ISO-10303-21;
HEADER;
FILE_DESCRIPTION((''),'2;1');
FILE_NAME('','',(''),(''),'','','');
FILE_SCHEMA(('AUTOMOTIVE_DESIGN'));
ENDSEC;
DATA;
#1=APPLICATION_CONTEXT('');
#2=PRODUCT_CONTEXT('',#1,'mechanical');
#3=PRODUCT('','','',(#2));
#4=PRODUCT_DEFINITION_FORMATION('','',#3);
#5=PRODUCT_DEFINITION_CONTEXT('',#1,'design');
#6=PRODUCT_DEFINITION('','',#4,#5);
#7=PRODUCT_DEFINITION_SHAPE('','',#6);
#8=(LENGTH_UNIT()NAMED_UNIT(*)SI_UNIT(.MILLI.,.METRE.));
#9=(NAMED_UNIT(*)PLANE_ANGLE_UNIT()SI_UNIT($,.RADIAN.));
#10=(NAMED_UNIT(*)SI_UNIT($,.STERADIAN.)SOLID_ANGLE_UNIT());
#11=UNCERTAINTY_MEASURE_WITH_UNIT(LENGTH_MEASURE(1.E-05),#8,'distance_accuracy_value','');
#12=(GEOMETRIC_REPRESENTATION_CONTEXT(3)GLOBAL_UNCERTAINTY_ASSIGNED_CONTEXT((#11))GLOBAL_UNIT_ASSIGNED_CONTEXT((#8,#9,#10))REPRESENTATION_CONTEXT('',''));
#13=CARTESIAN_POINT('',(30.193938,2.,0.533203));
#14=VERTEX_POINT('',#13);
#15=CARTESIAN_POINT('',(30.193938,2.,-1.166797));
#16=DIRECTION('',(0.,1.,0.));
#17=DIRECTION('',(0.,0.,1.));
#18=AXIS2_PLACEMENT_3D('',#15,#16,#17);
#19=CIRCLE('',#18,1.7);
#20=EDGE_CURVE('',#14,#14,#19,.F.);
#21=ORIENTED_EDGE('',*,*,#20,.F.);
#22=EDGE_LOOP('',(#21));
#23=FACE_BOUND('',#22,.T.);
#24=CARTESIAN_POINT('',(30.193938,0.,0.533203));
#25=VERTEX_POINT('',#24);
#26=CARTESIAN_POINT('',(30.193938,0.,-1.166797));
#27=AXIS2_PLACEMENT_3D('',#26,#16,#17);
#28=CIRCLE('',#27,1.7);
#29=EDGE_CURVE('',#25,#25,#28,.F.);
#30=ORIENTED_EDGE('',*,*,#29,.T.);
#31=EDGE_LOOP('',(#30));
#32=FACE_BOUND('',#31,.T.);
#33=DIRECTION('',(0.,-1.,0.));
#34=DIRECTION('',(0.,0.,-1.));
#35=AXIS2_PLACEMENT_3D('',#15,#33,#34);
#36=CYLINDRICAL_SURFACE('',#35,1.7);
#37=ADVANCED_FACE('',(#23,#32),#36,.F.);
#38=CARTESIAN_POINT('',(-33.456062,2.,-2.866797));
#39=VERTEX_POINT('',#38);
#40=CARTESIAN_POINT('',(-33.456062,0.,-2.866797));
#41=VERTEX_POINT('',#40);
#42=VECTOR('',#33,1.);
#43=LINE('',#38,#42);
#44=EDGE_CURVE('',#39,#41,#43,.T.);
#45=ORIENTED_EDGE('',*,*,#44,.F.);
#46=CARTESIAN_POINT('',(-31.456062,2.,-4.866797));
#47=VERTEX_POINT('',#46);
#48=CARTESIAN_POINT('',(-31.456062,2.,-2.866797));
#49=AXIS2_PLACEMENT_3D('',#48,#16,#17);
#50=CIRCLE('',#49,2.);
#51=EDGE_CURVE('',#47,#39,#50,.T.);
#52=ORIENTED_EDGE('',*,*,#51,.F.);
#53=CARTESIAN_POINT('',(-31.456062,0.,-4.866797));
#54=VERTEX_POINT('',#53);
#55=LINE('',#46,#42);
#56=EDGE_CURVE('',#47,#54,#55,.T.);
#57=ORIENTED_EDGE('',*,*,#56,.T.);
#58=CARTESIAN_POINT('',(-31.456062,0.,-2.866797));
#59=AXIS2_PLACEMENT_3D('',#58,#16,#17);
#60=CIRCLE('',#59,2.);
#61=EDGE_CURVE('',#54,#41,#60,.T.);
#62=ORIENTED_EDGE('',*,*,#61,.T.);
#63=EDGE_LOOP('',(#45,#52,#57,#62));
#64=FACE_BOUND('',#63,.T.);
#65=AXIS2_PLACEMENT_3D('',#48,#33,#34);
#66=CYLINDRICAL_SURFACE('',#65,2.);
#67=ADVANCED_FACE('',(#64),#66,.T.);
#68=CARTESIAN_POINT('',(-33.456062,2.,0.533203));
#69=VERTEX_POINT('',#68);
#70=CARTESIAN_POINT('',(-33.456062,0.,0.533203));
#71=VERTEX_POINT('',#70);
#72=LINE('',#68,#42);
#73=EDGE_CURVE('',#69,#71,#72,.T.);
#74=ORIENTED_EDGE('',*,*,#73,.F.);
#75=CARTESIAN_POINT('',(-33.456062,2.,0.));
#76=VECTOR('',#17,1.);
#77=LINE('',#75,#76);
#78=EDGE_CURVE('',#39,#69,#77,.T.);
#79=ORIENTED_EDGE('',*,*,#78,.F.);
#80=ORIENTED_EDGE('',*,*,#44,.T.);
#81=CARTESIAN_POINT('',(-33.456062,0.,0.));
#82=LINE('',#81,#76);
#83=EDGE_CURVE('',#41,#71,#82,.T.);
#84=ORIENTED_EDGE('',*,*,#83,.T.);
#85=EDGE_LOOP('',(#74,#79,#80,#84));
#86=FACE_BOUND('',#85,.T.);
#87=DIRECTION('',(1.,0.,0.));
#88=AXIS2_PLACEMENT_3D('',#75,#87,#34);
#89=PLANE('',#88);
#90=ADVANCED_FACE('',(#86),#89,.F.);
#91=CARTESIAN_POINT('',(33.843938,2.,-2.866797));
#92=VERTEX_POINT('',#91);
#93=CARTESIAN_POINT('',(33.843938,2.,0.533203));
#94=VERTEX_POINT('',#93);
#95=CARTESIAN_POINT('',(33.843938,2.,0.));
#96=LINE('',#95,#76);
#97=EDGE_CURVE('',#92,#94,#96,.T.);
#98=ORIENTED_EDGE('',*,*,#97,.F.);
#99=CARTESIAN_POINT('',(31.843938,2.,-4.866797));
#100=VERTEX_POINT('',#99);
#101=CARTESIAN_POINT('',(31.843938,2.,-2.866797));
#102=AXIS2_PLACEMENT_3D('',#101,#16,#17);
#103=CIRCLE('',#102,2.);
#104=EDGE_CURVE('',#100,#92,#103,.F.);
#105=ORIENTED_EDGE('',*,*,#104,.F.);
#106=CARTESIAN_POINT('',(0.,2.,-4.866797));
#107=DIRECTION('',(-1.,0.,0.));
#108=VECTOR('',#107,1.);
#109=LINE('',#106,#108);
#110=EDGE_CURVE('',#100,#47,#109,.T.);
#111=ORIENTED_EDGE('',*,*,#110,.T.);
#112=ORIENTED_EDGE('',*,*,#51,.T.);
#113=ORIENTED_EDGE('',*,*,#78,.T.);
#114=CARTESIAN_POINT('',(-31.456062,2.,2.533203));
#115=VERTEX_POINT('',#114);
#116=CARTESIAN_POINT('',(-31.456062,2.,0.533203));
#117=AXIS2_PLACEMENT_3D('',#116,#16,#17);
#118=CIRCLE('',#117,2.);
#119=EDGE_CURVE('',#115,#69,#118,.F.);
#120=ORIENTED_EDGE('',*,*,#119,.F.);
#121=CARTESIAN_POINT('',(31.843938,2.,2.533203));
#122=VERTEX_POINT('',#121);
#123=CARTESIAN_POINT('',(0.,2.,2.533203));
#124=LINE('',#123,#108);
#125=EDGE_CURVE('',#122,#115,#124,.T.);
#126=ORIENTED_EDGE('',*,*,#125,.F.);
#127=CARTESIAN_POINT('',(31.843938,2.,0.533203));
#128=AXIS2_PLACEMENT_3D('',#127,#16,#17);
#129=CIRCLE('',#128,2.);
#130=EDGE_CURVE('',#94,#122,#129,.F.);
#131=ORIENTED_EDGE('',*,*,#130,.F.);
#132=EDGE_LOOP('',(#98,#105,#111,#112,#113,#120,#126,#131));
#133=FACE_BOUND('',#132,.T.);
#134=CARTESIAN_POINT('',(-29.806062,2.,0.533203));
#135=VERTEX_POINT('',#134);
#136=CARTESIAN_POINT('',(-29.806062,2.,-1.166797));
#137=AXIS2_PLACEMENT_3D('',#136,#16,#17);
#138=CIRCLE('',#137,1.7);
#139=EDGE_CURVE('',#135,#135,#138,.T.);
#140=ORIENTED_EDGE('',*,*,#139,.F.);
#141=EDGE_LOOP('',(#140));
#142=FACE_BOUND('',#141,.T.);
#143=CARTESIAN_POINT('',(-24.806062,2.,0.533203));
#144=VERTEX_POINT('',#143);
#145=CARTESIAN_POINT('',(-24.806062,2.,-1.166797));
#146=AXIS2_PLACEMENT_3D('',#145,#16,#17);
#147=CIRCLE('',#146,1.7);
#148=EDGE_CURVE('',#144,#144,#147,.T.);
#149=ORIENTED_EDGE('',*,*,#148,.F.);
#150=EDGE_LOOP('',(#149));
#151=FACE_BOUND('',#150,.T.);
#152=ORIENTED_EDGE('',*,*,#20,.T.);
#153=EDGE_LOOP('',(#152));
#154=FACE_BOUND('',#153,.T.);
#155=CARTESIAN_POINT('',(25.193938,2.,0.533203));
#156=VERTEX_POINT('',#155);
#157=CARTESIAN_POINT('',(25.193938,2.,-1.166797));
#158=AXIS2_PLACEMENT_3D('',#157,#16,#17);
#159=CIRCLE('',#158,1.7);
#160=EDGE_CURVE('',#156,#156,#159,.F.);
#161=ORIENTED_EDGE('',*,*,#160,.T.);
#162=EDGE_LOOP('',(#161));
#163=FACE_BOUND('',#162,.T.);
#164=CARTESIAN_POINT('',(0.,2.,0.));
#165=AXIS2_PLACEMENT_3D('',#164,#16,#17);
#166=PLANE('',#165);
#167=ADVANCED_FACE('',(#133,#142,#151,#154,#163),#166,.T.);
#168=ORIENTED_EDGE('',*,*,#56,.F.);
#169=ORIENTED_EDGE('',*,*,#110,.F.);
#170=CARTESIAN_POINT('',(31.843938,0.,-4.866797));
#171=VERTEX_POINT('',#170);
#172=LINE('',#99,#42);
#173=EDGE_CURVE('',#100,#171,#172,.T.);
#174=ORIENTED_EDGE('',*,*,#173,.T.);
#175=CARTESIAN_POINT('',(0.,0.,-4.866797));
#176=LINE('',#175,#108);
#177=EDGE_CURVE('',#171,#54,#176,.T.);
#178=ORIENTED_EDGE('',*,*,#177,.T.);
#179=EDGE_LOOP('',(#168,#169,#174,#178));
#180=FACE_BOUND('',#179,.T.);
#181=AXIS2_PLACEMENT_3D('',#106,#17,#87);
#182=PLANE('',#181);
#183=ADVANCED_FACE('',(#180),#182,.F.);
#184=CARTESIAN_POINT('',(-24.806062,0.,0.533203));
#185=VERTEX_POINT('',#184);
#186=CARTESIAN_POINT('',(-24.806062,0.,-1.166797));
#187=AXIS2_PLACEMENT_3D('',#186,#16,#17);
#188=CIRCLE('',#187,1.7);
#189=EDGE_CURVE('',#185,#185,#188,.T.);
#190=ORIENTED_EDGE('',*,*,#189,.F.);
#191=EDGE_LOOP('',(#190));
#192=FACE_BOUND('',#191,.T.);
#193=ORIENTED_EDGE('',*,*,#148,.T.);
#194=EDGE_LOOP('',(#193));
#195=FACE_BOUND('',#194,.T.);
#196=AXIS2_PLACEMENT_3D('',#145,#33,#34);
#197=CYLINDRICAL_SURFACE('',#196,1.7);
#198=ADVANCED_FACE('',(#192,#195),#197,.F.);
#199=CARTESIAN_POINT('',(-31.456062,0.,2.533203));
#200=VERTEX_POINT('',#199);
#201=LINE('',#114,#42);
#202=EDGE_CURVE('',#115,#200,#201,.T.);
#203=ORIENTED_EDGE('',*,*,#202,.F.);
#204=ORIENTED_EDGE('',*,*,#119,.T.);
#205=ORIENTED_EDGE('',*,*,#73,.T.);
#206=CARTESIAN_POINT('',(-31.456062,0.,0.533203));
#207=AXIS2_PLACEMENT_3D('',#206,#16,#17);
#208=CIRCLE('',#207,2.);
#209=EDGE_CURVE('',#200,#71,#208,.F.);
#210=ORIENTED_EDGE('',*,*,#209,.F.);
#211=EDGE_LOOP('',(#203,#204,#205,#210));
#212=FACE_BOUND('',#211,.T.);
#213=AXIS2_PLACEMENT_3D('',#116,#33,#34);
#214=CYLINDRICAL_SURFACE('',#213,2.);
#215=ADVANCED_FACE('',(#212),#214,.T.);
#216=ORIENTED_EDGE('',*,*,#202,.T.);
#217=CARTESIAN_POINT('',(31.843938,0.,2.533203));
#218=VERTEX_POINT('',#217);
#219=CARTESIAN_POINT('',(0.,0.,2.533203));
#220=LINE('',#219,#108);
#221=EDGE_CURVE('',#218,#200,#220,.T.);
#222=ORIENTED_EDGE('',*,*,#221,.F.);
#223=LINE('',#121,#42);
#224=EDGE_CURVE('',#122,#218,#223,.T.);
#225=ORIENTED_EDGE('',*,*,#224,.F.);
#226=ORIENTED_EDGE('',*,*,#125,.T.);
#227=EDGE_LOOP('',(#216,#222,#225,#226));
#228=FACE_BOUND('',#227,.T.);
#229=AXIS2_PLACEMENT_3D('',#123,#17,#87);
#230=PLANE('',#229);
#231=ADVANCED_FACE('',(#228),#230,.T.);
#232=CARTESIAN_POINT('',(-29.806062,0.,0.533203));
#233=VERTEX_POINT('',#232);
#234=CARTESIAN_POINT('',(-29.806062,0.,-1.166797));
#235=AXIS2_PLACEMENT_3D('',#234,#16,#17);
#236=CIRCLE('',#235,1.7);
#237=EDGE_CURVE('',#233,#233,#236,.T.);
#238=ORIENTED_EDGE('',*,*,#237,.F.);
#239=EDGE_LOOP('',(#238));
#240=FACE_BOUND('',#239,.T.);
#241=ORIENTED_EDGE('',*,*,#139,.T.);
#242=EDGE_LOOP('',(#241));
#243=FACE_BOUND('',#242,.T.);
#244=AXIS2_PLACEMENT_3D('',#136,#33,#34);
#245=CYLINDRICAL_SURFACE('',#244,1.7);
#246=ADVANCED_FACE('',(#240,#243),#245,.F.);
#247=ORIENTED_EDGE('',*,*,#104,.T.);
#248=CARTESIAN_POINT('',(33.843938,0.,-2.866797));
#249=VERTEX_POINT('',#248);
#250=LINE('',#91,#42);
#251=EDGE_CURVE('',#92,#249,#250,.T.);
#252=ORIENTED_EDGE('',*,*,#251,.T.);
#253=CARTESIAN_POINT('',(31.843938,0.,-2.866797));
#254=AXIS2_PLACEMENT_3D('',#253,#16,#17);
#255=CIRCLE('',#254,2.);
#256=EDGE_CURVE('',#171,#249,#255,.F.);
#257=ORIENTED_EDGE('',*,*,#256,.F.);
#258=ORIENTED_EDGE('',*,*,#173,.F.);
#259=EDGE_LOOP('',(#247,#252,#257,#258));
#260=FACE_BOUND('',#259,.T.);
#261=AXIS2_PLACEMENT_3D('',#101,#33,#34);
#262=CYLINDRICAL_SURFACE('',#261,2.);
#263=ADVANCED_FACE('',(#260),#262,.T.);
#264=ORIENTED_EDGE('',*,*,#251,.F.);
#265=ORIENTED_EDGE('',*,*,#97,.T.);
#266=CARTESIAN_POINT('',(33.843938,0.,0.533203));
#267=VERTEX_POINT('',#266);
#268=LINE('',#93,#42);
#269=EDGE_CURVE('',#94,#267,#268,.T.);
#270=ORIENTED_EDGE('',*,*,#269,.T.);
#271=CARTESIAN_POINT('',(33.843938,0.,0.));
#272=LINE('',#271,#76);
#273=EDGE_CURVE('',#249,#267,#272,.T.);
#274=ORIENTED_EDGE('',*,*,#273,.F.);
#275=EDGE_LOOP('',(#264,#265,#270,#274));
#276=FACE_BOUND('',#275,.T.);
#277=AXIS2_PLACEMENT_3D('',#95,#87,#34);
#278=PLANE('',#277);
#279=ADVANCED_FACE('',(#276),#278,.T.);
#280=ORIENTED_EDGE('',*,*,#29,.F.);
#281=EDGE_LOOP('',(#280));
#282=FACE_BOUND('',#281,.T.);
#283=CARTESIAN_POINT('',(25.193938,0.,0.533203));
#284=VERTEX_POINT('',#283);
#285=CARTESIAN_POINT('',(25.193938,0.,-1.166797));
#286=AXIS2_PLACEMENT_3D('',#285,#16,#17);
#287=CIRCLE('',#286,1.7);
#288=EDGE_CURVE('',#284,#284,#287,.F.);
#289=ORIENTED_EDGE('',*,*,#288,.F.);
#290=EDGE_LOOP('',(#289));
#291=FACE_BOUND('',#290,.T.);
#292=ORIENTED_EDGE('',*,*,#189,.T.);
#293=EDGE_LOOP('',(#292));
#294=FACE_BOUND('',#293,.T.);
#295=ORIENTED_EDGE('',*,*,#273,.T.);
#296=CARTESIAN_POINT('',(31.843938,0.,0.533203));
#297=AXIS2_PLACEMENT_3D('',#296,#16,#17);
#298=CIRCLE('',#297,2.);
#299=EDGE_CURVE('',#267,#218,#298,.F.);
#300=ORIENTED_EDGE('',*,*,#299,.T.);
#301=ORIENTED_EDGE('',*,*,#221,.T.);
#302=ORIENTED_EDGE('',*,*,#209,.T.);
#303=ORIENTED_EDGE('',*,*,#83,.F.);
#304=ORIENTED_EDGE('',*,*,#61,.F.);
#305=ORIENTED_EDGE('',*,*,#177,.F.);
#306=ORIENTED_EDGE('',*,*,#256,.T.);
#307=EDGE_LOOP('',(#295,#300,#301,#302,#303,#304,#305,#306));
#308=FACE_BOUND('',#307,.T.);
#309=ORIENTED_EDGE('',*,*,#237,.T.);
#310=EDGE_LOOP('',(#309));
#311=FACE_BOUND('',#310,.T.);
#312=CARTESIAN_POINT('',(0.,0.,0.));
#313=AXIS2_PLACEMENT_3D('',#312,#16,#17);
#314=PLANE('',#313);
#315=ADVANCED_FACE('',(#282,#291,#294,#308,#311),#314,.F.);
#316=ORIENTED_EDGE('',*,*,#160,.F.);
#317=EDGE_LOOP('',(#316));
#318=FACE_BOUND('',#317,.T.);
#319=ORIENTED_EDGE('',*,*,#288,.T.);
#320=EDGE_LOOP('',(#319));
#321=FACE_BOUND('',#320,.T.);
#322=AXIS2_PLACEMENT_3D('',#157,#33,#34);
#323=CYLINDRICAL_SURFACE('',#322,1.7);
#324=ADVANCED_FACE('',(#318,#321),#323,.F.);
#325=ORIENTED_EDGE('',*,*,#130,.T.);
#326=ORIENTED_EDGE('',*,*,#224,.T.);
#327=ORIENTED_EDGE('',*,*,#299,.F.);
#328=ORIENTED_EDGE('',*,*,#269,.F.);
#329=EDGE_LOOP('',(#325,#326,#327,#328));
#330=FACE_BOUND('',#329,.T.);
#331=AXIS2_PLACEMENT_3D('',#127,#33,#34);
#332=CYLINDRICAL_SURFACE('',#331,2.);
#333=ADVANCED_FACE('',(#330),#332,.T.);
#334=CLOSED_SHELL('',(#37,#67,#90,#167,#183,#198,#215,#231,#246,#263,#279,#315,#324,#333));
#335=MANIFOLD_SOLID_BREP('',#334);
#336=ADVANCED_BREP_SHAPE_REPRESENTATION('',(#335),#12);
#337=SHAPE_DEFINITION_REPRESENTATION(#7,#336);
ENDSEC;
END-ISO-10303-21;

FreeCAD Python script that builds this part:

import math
import FreeCAD as App
import Part
import Sketcher

V = App.Vector

doc = App.newDocument("Part")
body = doc.addObject("PartDesign::Body", "Body")

sketch1 = body.newObject("Sketcher::SketchObject", "Sketch")
sketch1.AttachmentSupport = (doc.getObject("XZ_Plane"), [""])
sketch1.MapMode = "FlatFace"
sketch1.addGeometry(Part.LineSegment(V(31.8, -4.9, 0), V(-31.5, -4.9, 0)), False)
sketch1.addGeometry(Part.ArcOfCircle(Part.Circle(V(-31.5, -2.9, 0), V(0, 0, 1), 2), math.radians(-180), math.radians(-90)), False)
sketch1.addGeometry(Part.LineSegment(V(-33.5, -2.9, 0), V(-33.5, 0.5, 0)), False)
sketch1.addGeometry(Part.ArcOfCircle(Part.Circle(V(-31.5, 0.5, 0), V(0, 0, 1), 2), math.radians(90), math.radians(180)), False)
sketch1.addGeometry(Part.LineSegment(V(-31.5, 2.5, 0), V(31.8, 2.5, 0)), False)
sketch1.addGeometry(Part.ArcOfCircle(Part.Circle(V(31.8, 0.5, 0), V(0, 0, 1), 2), math.radians(0), math.radians(90)), False)
sketch1.addGeometry(Part.LineSegment(V(33.8, 0.5, 0), V(33.8, -2.9, 0)), False)
sketch1.addGeometry(Part.ArcOfCircle(Part.Circle(V(31.8, -2.9, 0), V(0, 0, 1), 2), math.radians(-90), math.radians(0)), False)
sketch1.addGeometry(Part.Circle(V(-29.8, -1.2, 0), V(0, 0, 1), 1.7), False)
sketch1.addGeometry(Part.Circle(V(-24.8, -1.2, 0), V(0, 0, 1), 1.7), False)
sketch1.addGeometry(Part.Circle(V(25.2, -1.2, 0), V(0, 0, 1), 1.7), False)
sketch1.addGeometry(Part.Circle(V(30.2, -1.2, 0), V(0, 0, 1), 1.7), False)
sketch1.addConstraint(Sketcher.Constraint("Tangent", 0, 2, 1, 2))
sketch1.addConstraint(Sketcher.Constraint("Tangent", 1, 1, 2, 1))
sketch1.addConstraint(Sketcher.Constraint("Tangent", 2, 2, 3, 2))
sketch1.addConstraint(Sketcher.Constraint("Tangent", 3, 1, 4, 1))
sketch1.addConstraint(Sketcher.Constraint("Tangent", 4, 2, 5, 2))
sketch1.addConstraint(Sketcher.Constraint("Tangent", 5, 1, 6, 1))
sketch1.addConstraint(Sketcher.Constraint("Tangent", 6, 2, 7, 2))
sketch1.addConstraint(Sketcher.Constraint("Tangent", 7, 1, 0, 1))
sketch1.addConstraint(Sketcher.Constraint("Horizontal", 0))
sketch1.addConstraint(Sketcher.Constraint("Vertical", 2))
sketch1.addConstraint(Sketcher.Constraint("Horizontal", 4))
sketch1.addConstraint(Sketcher.Constraint("Vertical", 6))
sketch1.addConstraint(Sketcher.Constraint("Equal", 1, 3))
sketch1.addConstraint(Sketcher.Constraint("Equal", 3, 5))
sketch1.addConstraint(Sketcher.Constraint("Equal", 5, 7))
sketch1.addConstraint(Sketcher.Constraint("Equal", 8, 9))
sketch1.addConstraint(Sketcher.Constraint("Equal", 9, 10))
sketch1.addConstraint(Sketcher.Constraint("Equal", 10, 11))
sketch1.addConstraint(Sketcher.Constraint("Horizontal", 8, 3, 9, 3))
sketch1.addConstraint(Sketcher.Constraint("Horizontal", 9, 3, 10, 3))
sketch1.addConstraint(Sketcher.Constraint("Horizontal", 10, 3, 11, 3))
sketch1.addConstraint(Sketcher.Constraint("Radius", 1, 2.0))
sketch1.addConstraint(Sketcher.Constraint("Diameter", 8, 3.4))
sketch1.addConstraint(Sketcher.Constraint("DistanceX", 0, 2, 0, 1, 63.3))
sketch1.addConstraint(Sketcher.Constraint("DistanceY", 2, 1, 2, 2, 3.4))
sketch1.addConstraint(Sketcher.Constraint("DistanceX", 8, 3, 9, 3, 5.0))
sketch1.addConstraint(Sketcher.Constraint("DistanceX", 9, 3, 10, 3, 50.0))
sketch1.addConstraint(Sketcher.Constraint("DistanceX", 10, 3, 11, 3, 5.0))
sketch1.addConstraint(Sketcher.Constraint("DistanceY", 1, 3, 8, 3, 1.7))
sketch1.addConstraint(Sketcher.Constraint("DistanceX", 1, 3, 8, 3, 1.65))
sketch1.addConstraint(Sketcher.Constraint("DistanceX", 1, 3, -1, 1, 31.456062))
sketch1.addConstraint(Sketcher.Constraint("DistanceY", 1, 3, -1, 1, 2.866797))
pad1 = body.newObject("PartDesign::Pad", "Pad")
pad1.Profile = sketch1
pad1.Length = 2
pad1.Reversed = True

doc.recompute()
